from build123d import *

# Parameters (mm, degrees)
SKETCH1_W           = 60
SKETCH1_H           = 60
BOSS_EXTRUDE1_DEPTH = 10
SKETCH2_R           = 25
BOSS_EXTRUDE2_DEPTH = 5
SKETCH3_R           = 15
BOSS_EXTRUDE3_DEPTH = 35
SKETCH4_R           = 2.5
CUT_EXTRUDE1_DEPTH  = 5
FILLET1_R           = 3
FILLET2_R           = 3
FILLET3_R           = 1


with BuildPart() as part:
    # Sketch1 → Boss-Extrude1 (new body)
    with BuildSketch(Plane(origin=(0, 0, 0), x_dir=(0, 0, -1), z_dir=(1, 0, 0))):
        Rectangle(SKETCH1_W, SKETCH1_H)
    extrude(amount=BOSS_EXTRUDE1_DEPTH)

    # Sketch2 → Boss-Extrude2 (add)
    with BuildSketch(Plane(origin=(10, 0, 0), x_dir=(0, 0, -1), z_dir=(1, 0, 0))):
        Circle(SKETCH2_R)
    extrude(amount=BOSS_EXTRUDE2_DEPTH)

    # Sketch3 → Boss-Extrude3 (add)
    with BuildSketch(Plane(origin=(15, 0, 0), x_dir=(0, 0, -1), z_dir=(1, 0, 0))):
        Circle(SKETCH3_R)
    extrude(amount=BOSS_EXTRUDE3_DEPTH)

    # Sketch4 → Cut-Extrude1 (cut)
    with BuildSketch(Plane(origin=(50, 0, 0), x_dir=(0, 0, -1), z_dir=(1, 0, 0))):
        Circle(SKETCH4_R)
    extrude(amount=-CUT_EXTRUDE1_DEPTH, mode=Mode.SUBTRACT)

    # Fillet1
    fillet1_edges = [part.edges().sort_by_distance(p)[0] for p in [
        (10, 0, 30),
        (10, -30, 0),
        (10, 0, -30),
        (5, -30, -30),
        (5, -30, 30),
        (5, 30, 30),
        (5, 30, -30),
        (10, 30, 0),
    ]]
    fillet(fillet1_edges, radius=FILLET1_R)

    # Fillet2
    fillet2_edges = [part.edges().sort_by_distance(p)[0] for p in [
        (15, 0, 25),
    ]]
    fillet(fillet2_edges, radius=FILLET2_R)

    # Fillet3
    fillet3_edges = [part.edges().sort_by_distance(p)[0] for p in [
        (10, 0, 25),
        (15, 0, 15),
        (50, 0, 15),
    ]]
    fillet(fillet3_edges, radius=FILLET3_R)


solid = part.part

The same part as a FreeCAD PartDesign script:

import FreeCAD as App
import Part
import Sketcher

V = App.Vector
Q = App.Units.Quantity


def edges_at(feature, points):
    """Names of the edges that pass closest to the given points."""
    edges = feature.Shape.Edges
    near = lambda p: min(range(len(edges)), key=lambda i: edges[i].distToShape(Part.Vertex(*p))[0])
    return sorted({f"Edge{near(p) + 1}" for p in points})

doc = App.newDocument("Part")
params = doc.addObject("Spreadsheet::Sheet", "Params")
for row, (alias, value) in enumerate([
    ("sketch1_width", "60 mm"),
    ("pad1_length", "10 mm"),
    ("sketch2_diameter", "50 mm"),
    ("pad2_length", "5 mm"),
    ("sketch3_diameter", "30 mm"),
    ("pad3_length", "35 mm"),
    ("sketch4_diameter", "5 mm"),
    ("pocket1_length", "5 mm"),
    ("fillet_radius", "3 mm"),
    ("fillet2_radius", "3 mm"),
    ("fillet3_radius", "1 mm"),
], start=1):
    params.set(f"A{row}", alias)
    params.set(f"B{row}", "=" + value)
    params.setAlias(f"B{row}", alias)

body = doc.addObject("PartDesign::Body", "Body")

sketch1 = body.newObject("Sketcher::SketchObject", "Sketch")
sketch1.AttachmentSupport = (doc.getObject("YZ_Plane"), [""])
sketch1.MapMode = "FlatFace"
sketch1.addGeometry(Part.LineSegment(V(30, 30, 0), V(-30, 30, 0)), False)
sketch1.addGeometry(Part.LineSegment(V(-30, 30, 0), V(-30, -30, 0)), False)
sketch1.addGeometry(Part.LineSegment(V(-30, -30, 0), V(30, -30, 0)), False)
sketch1.addGeometry(Part.LineSegment(V(30, -30, 0), V(30, 30, 0)), False)
sketch1.addConstraint(Sketcher.Constraint("Coincident", 0, 2, 1, 1))
sketch1.addConstraint(Sketcher.Constraint("Coincident", 1, 2, 2, 1))
sketch1.addConstraint(Sketcher.Constraint("Coincident", 2, 2, 3, 1))
sketch1.addConstraint(Sketcher.Constraint("Coincident", 3, 2, 0, 1))
sketch1.addConstraint(Sketcher.Constraint("Horizontal", 0))
sketch1.addConstraint(Sketcher.Constraint("Vertical", 1))
sketch1.addConstraint(Sketcher.Constraint("Horizontal", 2))
sketch1.addConstraint(Sketcher.Constraint("Vertical", 3))
sketch1.addConstraint(Sketcher.Constraint("Symmetric", 0, 2, 2, 2, -1, 1))
sketch1.addConstraint(Sketcher.Constraint("Equal", 2, 1))
sketch1.addConstraint(Sketcher.Constraint("DistanceX", 0, 2, 0, 1, Q("60 mm")))
sketch1.setExpression("Constraints[10]", "Params.sketch1_width")
pad1 = body.newObject("PartDesign::Pad", "Pad")
pad1.Profile = sketch1
pad1.setExpression("Length", "Params.pad1_length")

sketch2 = body.newObject("Sketcher::SketchObject", "Sketch001")
sketch2.AttachmentSupport = (doc.getObject("YZ_Plane"), [""])
sketch2.MapMode = "FlatFace"
sketch2.AttachmentOffset = App.Placement(V(0, 0, 10), App.Rotation())
sketch2.addGeometry(Part.Circle(V(0, 0, 0), V(0, 0, 1), 25), False)
sketch2.addConstraint(Sketcher.Constraint("Coincident", 0, 3, -1, 1))
sketch2.addConstraint(Sketcher.Constraint("Diameter", 0, Q("50 mm")))
sketch2.setExpression("Constraints[1]", "Params.sketch2_diameter")
pad2 = body.newObject("PartDesign::Pad", "Pad001")
pad2.Profile = sketch2
pad2.setExpression("Length", "Params.pad2_length")

sketch3 = body.newObject("Sketcher::SketchObject", "Sketch002")
sketch3.AttachmentSupport = (doc.getObject("YZ_Plane"), [""])
sketch3.MapMode = "FlatFace"
sketch3.AttachmentOffset = App.Placement(V(0, 0, 15), App.Rotation())
sketch3.addGeometry(Part.Circle(V(0, 0, 0), V(0, 0, 1), 15), False)
sketch3.addConstraint(Sketcher.Constraint("Coincident", 0, 3, -1, 1))
sketch3.addConstraint(Sketcher.Constraint("Diameter", 0, Q("30 mm")))
sketch3.setExpression("Constraints[1]", "Params.sketch3_diameter")
pad3 = body.newObject("PartDesign::Pad", "Pad002")
pad3.Profile = sketch3
pad3.setExpression("Length", "Params.pad3_length")

sketch4 = body.newObject("Sketcher::SketchObject", "Sketch003")
sketch4.AttachmentSupport = (doc.getObject("YZ_Plane"), [""])
sketch4.MapMode = "FlatFace"
sketch4.AttachmentOffset = App.Placement(V(0, 0, 50), App.Rotation())
sketch4.addGeometry(Part.Circle(V(0, 0, 0), V(0, 0, 1), 2.5), False)
sketch4.addConstraint(Sketcher.Constraint("Coincident", 0, 3, -1, 1))
sketch4.addConstraint(Sketcher.Constraint("Diameter", 0, Q("5 mm")))
sketch4.setExpression("Constraints[1]", "Params.sketch4_diameter")
pocket1 = body.newObject("PartDesign::Pocket", "Pocket")
pocket1.Profile = sketch4
pocket1.setExpression("Length", "Params.pocket1_length")
doc.recompute()

fillet = body.newObject("PartDesign::Fillet", "Fillet")
fillet.Base = (pocket1, edges_at(pocket1, [
    (10, 0, 30),
    (10, -30, 0),
    (10, 0, -30),
    (5, -30, -30),
    (5, -30, 30),
    (5, 30, 30),
    (5, 30, -30),
    (10, 30, 0),
]))
fillet.setExpression("Radius", "Params.fillet_radius")
doc.recompute()

fillet2 = body.newObject("PartDesign::Fillet", "Fillet001")
fillet2.Base = (fillet, edges_at(fillet, [(15, 0, 25)]))
fillet2.setExpression("Radius", "Params.fillet2_radius")
doc.recompute()

fillet3 = body.newObject("PartDesign::Fillet", "Fillet002")
fillet3.Base = (fillet2, edges_at(fillet2, [(10, 0, 25), (15, 0, 15), (50, 0, 15)]))
fillet3.setExpression("Radius", "Params.fillet3_radius")

doc.recompute()
